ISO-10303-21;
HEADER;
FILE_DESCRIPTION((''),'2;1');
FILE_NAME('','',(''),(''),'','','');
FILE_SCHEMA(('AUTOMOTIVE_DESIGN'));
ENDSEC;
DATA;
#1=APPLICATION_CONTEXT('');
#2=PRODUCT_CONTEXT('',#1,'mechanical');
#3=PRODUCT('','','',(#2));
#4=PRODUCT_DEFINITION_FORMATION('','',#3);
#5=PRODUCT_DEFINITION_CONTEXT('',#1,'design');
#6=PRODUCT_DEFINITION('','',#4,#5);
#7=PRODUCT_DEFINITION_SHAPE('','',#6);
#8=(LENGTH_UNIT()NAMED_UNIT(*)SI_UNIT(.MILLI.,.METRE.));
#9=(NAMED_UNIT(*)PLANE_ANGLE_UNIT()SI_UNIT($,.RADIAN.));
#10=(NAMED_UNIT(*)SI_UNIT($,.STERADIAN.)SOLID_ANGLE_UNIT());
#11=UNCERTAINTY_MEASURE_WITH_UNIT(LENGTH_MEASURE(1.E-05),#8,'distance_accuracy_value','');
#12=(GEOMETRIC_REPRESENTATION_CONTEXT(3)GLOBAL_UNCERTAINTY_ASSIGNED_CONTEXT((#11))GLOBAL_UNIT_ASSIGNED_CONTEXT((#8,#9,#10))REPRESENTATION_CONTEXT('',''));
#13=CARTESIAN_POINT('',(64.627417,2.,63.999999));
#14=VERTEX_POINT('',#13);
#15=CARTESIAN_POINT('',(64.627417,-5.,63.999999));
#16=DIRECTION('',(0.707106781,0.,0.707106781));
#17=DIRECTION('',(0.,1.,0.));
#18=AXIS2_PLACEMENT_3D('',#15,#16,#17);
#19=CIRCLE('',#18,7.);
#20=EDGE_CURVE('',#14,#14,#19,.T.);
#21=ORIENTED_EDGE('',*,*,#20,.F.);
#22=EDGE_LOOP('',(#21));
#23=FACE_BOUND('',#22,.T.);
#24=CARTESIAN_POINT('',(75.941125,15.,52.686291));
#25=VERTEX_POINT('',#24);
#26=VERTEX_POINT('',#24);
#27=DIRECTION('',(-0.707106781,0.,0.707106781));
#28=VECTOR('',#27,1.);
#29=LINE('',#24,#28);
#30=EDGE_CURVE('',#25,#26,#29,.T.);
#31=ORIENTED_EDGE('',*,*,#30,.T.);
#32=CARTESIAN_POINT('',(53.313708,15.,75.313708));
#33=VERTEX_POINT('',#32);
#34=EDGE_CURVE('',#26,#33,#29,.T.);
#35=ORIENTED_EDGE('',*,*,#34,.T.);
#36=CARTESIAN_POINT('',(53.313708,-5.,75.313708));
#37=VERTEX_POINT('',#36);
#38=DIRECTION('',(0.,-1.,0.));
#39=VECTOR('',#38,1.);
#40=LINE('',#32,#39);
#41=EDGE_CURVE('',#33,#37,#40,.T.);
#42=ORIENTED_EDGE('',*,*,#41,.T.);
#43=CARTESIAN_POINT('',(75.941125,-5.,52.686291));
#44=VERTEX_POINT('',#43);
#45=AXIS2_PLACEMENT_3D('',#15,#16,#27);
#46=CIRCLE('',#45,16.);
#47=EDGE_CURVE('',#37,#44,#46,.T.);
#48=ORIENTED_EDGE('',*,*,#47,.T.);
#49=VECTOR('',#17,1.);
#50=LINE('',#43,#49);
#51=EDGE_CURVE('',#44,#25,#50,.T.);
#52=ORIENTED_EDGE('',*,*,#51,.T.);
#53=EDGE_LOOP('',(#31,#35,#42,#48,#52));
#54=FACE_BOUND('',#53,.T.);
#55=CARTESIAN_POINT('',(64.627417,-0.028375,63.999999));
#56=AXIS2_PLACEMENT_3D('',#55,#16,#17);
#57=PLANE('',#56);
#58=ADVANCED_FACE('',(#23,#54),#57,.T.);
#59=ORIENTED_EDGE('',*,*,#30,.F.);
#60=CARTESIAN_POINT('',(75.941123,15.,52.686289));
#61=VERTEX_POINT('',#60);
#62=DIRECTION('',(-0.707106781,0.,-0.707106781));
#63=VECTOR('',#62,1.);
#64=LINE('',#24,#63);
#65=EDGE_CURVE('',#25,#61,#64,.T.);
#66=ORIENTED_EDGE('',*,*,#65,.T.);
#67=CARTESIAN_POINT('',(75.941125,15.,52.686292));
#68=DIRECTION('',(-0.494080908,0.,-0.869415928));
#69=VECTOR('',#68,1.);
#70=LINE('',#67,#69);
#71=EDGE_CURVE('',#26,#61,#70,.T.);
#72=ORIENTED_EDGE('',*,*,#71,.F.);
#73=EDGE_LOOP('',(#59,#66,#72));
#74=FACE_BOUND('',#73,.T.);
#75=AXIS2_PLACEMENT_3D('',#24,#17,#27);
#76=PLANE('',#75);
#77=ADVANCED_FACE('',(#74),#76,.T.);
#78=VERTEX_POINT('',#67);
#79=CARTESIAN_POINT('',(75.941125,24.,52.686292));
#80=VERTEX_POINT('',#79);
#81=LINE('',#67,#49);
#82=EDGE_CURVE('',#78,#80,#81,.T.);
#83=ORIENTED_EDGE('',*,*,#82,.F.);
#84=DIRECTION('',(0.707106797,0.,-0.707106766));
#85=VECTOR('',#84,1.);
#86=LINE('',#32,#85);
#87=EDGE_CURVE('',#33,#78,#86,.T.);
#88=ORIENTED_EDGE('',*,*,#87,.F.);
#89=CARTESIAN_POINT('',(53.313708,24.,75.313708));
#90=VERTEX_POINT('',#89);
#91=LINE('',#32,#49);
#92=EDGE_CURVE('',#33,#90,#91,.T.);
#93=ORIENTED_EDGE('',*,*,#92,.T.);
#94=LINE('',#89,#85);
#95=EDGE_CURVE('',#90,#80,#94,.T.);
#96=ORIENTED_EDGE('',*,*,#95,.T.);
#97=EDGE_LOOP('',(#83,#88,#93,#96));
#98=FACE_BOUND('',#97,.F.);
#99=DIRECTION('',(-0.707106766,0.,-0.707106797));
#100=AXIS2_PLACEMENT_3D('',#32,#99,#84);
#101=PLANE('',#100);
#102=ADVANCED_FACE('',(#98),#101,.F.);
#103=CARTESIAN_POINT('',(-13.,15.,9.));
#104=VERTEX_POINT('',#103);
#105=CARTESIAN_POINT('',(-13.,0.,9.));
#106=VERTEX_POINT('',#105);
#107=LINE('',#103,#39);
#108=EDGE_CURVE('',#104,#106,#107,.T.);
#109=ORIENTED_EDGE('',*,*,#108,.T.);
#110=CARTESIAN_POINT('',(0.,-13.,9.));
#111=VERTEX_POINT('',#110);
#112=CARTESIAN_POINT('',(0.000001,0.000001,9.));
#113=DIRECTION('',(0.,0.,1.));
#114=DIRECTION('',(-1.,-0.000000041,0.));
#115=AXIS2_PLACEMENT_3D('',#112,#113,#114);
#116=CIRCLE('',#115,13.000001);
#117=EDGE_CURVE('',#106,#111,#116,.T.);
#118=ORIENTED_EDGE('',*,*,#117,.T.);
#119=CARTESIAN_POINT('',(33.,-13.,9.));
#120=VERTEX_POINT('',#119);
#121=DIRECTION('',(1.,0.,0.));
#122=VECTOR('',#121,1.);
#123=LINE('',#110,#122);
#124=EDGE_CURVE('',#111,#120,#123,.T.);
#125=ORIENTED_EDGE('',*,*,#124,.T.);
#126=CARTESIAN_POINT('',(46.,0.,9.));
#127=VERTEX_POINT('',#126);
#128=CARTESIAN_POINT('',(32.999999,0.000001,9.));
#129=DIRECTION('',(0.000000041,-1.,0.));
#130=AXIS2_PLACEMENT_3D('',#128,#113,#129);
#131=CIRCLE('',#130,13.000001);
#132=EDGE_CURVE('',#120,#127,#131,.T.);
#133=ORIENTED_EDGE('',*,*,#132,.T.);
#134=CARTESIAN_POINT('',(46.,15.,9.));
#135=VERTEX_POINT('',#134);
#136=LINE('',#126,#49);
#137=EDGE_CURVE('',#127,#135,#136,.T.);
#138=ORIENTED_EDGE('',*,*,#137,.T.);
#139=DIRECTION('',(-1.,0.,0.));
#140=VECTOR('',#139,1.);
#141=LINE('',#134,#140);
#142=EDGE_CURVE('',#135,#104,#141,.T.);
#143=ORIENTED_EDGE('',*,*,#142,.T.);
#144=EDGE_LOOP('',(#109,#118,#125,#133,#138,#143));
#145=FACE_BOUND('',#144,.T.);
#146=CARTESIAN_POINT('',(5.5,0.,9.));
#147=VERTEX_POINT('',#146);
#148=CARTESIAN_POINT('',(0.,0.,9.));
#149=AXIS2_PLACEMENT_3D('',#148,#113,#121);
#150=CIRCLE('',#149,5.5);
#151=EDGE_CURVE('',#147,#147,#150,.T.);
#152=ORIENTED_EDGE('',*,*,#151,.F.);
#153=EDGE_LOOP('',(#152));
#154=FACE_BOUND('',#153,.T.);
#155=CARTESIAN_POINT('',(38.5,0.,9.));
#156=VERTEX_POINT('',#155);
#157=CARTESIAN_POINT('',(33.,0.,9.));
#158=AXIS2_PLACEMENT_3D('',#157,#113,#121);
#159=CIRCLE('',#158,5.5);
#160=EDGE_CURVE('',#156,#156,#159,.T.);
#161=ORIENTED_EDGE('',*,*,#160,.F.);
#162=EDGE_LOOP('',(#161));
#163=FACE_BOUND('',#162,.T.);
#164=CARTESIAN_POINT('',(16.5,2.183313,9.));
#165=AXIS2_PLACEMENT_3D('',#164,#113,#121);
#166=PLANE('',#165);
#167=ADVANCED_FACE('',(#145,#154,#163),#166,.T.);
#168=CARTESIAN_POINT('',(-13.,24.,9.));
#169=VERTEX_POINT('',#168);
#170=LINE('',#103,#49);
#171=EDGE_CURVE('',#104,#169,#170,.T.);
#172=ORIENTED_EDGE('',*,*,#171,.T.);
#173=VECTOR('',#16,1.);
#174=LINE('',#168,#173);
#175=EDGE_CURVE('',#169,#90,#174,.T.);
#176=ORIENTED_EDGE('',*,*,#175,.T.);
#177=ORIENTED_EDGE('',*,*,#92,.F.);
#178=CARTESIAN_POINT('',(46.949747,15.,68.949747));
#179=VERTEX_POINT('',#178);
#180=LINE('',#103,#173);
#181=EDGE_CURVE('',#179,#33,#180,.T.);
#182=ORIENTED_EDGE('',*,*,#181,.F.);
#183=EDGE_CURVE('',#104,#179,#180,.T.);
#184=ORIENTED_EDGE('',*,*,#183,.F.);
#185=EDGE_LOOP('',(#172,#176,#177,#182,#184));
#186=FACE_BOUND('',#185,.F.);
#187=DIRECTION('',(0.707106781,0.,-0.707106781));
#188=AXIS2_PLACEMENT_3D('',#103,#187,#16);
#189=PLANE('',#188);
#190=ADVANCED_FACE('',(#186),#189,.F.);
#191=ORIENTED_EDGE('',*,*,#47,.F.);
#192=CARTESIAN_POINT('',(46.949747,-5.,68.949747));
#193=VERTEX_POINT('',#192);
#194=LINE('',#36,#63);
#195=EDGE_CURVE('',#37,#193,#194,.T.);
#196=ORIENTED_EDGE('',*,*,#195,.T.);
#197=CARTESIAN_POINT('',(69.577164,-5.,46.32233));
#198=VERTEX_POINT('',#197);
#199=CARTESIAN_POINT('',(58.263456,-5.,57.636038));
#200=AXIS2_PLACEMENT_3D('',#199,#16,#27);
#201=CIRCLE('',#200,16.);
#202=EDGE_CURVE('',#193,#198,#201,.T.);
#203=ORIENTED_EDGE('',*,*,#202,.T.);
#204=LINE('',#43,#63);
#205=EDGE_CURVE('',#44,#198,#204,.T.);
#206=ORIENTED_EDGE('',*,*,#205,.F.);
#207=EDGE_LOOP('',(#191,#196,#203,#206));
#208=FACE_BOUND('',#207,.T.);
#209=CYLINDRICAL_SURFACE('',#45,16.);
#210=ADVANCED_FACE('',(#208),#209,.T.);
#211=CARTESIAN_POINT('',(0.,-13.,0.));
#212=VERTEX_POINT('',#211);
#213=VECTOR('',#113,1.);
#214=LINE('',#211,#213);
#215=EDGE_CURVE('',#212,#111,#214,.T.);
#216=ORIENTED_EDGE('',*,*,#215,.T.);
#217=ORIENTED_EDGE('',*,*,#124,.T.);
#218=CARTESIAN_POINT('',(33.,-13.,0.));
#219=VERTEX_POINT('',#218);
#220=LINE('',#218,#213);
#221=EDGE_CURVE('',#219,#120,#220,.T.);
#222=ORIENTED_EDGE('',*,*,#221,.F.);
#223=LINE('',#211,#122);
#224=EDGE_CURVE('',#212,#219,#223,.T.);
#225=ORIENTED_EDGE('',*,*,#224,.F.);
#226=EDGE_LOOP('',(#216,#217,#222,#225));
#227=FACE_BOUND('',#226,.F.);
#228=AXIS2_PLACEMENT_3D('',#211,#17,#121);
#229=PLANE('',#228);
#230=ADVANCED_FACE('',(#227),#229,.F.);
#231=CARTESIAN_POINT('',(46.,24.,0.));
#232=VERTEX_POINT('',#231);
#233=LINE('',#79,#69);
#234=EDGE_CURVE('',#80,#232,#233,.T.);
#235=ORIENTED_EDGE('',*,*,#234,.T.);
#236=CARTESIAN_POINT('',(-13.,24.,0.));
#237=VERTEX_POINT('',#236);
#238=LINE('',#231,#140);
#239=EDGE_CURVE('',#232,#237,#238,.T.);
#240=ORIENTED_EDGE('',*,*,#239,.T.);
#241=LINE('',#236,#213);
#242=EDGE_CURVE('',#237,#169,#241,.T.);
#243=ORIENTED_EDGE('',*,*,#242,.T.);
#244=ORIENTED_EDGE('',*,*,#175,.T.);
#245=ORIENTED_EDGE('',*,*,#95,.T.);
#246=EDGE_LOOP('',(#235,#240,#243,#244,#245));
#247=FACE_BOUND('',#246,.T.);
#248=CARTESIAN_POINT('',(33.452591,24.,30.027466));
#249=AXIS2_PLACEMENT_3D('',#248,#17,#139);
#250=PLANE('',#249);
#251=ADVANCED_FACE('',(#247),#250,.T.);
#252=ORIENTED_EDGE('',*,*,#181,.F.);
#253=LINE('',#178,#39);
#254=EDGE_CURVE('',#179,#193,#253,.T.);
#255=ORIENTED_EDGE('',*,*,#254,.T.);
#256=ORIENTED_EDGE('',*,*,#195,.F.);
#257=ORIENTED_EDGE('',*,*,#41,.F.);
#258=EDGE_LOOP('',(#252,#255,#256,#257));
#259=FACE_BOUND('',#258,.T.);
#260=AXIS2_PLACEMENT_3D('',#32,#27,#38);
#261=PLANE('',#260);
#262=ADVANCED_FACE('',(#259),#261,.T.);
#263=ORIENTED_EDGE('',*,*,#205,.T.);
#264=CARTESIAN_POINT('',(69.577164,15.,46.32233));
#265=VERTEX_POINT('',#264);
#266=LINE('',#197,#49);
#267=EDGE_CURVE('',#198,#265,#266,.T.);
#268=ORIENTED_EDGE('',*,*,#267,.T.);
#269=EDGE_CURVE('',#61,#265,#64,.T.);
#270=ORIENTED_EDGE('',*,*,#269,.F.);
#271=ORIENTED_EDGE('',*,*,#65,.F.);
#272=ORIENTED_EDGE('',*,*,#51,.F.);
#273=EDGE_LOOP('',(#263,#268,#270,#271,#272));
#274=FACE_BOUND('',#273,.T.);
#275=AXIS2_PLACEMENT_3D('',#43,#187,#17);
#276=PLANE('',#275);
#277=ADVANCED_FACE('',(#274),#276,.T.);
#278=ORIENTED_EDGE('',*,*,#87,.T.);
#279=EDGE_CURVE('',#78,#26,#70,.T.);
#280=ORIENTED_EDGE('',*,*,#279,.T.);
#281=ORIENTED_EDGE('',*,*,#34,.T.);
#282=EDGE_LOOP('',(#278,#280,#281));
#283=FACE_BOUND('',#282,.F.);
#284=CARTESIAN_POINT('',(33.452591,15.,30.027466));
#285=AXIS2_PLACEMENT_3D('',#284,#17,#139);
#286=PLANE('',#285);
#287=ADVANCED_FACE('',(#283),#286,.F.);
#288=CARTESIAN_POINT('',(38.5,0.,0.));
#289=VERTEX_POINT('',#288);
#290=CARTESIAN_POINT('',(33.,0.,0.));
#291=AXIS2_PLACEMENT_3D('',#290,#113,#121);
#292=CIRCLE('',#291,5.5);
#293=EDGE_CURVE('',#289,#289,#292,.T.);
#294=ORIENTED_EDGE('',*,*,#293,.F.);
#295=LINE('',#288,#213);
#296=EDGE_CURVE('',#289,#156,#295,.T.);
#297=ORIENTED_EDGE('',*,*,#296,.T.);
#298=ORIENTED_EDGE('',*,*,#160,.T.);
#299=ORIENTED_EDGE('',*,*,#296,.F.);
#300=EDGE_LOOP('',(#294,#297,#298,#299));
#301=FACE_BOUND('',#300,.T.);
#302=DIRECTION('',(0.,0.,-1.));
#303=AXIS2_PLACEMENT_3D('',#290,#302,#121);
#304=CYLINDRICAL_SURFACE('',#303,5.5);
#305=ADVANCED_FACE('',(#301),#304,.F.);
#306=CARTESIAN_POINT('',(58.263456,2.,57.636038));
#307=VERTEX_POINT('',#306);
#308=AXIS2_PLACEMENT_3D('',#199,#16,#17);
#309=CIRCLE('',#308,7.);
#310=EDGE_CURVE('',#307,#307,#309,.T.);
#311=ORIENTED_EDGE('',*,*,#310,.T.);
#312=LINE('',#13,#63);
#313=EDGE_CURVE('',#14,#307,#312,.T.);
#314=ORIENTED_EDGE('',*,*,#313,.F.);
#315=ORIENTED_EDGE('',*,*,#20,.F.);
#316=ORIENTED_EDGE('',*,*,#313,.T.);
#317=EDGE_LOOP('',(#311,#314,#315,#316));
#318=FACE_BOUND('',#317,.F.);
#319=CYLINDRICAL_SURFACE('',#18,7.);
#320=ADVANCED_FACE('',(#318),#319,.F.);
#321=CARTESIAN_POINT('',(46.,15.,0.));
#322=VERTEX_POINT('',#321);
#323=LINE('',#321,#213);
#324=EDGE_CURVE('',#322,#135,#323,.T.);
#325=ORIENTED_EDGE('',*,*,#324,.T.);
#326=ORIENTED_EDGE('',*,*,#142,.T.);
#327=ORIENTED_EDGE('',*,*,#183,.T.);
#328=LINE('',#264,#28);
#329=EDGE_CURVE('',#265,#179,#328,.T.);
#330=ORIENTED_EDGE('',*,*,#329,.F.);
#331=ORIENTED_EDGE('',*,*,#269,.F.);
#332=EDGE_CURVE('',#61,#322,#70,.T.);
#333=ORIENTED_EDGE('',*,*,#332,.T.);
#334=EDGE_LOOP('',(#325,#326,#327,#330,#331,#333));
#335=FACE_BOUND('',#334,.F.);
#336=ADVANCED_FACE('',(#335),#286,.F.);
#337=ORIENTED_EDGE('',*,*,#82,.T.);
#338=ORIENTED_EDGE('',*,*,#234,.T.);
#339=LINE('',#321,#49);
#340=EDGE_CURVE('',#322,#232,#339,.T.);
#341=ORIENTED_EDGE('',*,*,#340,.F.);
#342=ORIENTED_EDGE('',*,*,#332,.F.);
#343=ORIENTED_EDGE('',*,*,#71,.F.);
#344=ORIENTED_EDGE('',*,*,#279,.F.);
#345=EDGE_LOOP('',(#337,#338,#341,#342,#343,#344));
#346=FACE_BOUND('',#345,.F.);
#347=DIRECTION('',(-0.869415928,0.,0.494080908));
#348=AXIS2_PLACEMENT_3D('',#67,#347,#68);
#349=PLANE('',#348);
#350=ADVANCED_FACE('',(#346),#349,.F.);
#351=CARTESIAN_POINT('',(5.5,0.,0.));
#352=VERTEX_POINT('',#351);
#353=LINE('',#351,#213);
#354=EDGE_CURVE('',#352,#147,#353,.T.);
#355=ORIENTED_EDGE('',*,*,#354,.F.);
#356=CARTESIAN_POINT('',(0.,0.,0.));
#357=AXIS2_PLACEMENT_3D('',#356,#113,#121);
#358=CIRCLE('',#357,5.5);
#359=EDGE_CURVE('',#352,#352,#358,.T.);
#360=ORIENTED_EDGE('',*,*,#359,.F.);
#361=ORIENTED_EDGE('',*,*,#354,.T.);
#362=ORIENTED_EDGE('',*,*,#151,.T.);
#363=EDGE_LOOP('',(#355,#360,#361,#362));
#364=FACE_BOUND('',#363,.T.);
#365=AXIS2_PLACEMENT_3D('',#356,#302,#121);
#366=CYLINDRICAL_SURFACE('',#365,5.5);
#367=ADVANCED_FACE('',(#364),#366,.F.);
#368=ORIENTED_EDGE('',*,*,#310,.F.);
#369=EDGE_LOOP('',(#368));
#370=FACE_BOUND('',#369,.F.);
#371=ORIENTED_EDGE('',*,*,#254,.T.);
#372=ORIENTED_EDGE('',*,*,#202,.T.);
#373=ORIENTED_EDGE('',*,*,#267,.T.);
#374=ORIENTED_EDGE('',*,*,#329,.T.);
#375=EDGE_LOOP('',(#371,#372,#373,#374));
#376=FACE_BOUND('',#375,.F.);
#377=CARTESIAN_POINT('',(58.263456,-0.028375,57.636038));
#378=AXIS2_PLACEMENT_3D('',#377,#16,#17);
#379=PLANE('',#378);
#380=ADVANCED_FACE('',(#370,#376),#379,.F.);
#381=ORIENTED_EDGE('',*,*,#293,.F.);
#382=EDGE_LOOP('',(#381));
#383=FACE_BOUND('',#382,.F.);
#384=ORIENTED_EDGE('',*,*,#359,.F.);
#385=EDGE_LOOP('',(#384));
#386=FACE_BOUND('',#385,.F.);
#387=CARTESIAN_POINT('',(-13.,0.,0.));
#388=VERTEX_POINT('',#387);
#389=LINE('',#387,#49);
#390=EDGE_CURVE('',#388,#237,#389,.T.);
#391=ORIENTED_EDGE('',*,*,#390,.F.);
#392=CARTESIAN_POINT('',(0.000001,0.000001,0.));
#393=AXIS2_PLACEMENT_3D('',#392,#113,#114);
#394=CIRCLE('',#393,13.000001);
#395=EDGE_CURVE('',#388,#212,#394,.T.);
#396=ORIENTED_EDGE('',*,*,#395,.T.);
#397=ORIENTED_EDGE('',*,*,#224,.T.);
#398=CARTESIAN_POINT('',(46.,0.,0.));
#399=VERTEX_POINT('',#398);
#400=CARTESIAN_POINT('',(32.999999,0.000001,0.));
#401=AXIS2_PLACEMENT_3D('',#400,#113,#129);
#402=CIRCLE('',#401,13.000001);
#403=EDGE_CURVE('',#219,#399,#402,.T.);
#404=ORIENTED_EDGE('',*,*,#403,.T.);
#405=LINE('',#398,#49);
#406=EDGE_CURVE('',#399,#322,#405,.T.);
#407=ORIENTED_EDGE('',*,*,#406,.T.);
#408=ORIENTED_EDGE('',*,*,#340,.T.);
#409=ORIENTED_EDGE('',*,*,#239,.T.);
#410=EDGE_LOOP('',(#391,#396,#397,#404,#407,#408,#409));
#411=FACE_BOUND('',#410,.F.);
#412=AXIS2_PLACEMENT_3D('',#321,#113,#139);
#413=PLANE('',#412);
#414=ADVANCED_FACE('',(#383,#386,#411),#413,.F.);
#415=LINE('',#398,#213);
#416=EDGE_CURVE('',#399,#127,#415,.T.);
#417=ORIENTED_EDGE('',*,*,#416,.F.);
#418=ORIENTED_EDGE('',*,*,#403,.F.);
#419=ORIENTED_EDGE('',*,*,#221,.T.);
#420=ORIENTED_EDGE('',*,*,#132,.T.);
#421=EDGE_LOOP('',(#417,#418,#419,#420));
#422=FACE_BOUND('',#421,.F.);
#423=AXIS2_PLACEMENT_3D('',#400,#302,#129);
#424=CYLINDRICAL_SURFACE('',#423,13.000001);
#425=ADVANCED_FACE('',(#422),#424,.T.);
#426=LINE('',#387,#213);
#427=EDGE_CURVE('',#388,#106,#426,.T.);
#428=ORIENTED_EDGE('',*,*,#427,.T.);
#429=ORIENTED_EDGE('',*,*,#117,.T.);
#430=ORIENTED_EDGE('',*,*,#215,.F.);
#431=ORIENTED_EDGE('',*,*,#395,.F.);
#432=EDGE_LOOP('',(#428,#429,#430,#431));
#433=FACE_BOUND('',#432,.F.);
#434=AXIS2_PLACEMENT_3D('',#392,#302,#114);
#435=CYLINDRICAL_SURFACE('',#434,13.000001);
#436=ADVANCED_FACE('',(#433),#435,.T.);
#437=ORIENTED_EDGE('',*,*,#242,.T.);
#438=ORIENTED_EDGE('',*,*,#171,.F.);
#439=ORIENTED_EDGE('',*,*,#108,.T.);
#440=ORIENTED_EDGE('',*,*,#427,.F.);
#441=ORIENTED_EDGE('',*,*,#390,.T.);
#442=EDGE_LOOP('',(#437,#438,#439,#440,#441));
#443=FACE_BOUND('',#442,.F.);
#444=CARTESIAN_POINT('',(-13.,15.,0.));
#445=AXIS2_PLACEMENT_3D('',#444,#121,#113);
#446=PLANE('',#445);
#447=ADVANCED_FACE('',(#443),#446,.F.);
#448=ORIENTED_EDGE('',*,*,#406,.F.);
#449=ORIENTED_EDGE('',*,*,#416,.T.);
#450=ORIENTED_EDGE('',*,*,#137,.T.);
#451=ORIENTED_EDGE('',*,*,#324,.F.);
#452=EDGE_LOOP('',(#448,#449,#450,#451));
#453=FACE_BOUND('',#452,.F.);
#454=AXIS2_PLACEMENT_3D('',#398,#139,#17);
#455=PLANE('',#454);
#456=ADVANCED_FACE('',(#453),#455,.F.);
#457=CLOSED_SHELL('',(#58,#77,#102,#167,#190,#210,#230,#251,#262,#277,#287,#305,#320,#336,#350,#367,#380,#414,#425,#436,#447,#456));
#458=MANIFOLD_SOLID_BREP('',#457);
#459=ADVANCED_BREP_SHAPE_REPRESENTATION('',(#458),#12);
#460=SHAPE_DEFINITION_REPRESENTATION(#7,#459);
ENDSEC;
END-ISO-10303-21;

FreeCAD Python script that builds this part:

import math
import FreeCAD as App
import Part
import Sketcher
Q = App.Units.Quantity

doc = App.newDocument("Part")
body = doc.addObject("PartDesign::Body", "Body")

sketch1 = body.newObject("Sketcher::SketchObject", "Sketch")
sketch1.AttachmentSupport = (doc.getObject("XY_Plane"), [""])
sketch1.MapMode = "FlatFace"
sketch1.addGeometry([
    Part.ArcOfCircle(Part.Circle(App.Vector(0.000001, 0.000001, 0), App.Vector(0, 0, 1), 13.000001), math.radians(-179.999998), math.radians(-90.000002)),
    Part.LineSegment(App.Vector(0, -13, 0), App.Vector(33, -13, 0)),
    Part.ArcOfCircle(Part.Circle(App.Vector(32.999999, 0.000001, 0), App.Vector(0, 0, 1), 13.000001), math.radians(-89.999998), math.radians(-0.000002)),
    Part.LineSegment(App.Vector(46, 0, 0), App.Vector(46, 15, 0)),
    Part.LineSegment(App.Vector(46, 15, 0), App.Vector(-13, 15, 0)),
    Part.LineSegment(App.Vector(-13, 15, 0), App.Vector(-13, 0, 0)),
    Part.Circle(App.Vector(0, 0, 0), App.Vector(0, 0, 1), 5.5),
    Part.Circle(App.Vector(33, 0, 0), App.Vector(0, 0, 1), 5.5),
], False)
sketch1.addConstraint([
    Sketcher.Constraint("Tangent", 0, 2, 1, 1),
    Sketcher.Constraint("Tangent", 1, 2, 2, 1),
    Sketcher.Constraint("Tangent", 2, 2, 3, 1),
    Sketcher.Constraint("Coincident", 3, 2, 4, 1),
    Sketcher.Constraint("Coincident", 4, 2, 5, 1),
    Sketcher.Constraint("Tangent", 5, 2, 0, 1),
    Sketcher.Constraint("Horizontal", 1),
    Sketcher.Constraint("Vertical", 3),
    Sketcher.Constraint("Horizontal", 4),
    Sketcher.Constraint("Vertical", 5),
    Sketcher.Constraint("Coincident", 0, 3, -1, 1),
    Sketcher.Constraint("Coincident", 6, 3, -1, 1),
    Sketcher.Constraint("Coincident", 7, 3, 2, 3),
    Sketcher.Constraint("Equal", 0, 2),
    Sketcher.Constraint("Equal", 6, 7),
    Sketcher.Constraint("Diameter", 6, Q("11 mm")),
    Sketcher.Constraint("Radius", 0, Q("13.000001 mm")),
    Sketcher.Constraint("DistanceX", 1, 1, 1, 2, Q("33 mm")),
    Sketcher.Constraint("DistanceY", 3, 1, 3, 2, Q("15 mm")),
])
pad1 = body.newObject("PartDesign::Pad", "Pad")
pad1.Profile = sketch1
pad1.Length = 9

sketch2 = body.newObject("Sketcher::SketchObject", "Sketch001")
sketch2.AttachmentSupport = (doc.getObject("XZ_Plane"), [""])
sketch2.MapMode = "FlatFace"
sketch2.AttachmentOffset = App.Placement(App.Vector(0, 0, -15), App.Rotation())
sketch2.addGeometry([
    Part.LineSegment(App.Vector(46, 0, 0), App.Vector(-13, 0, 0)),
    Part.LineSegment(App.Vector(-13, 0, 0), App.Vector(-13, 9, 0)),
    Part.LineSegment(App.Vector(-13, 9, 0), App.Vector(53.313708, 75.313708, 0)),
    Part.LineSegment(App.Vector(53.313708, 75.313708, 0), App.Vector(75.941125, 52.686292, 0)),
    Part.LineSegment(App.Vector(75.941125, 52.686292, 0), App.Vector(46, 0, 0)),
], False)
sketch2.addConstraint([
    Sketcher.Constraint("Coincident", 0, 2, 1, 1),
    Sketcher.Constraint("Coincident", 1, 2, 2, 1),
    Sketcher.Constraint("Coincident", 2, 2, 3, 1),
    Sketcher.Constraint("Coincident", 3, 2, 4, 1),
    Sketcher.Constraint("Coincident", 4, 2, 0, 1),
    Sketcher.Constraint("Horizontal", 0),
    Sketcher.Constraint("Vertical", 1),
    Sketcher.Constraint("PointOnObject", 0, 2, -1),
    Sketcher.Constraint("Perpendicular", 2, 3),
    Sketcher.Constraint("DistanceX", 0, 2, 0, 1, Q("59 mm")),
    Sketcher.Constraint("DistanceY", 1, 1, 1, 2, Q("9 mm")),
    Sketcher.Constraint("Angle", 2, Q("45 deg")),
    Sketcher.Constraint("Distance", 3, Q("31.999999 mm")),
    Sketcher.Constraint("DistanceX", 0, 2, -1, 1, Q("13 mm")),
    Sketcher.Constraint("Distance", 4, Q("60.59964 mm")),
])
pad2 = body.newObject("PartDesign::Pad", "Pad001")
pad2.Profile = sketch2
pad2.Length = 9
pad2.Reversed = True

sketch3 = body.newObject("Sketcher::SketchObject", "Sketch002")
sketch3.Placement = App.Placement(App.Vector(64.313708, 0, 64.313708), App.Rotation(App.Vector(0, 1, 0), App.Vector(-0.707106781, 0, 0.707106781), App.Vector(0.707106781, 0, 0.707106781), "ZXY"))
sketch3.addGeometry([
    Part.LineSegment(App.Vector(15, -16.443651, 0), App.Vector(15, 15.556349, 0)),
    Part.LineSegment(App.Vector(15, 15.556349, 0), App.Vector(-5, 15.556349, 0)),
    Part.ArcOfCircle(Part.Circle(App.Vector(-5, -0.443651, 0), App.Vector(0, 0, 1), 16), math.radians(90), math.radians(270)),
    Part.LineSegment(App.Vector(-5, -16.443651, 0), App.Vector(15, -16.443651, 0)),
    Part.Circle(App.Vector(-5, -0.443651, 0), App.Vector(0, 0, 1), 7),
], False)
sketch3.addConstraint([
    Sketcher.Constraint("Coincident", 0, 2, 1, 1),
    Sketcher.Constraint("Tangent", 1, 2, 2, 1),
    Sketcher.Constraint("Tangent", 2, 2, 3, 1),
    Sketcher.Constraint("Coincident", 3, 2, 0, 1),
    Sketcher.Constraint("Vertical", 0),
    Sketcher.Constraint("Horizontal", 1),
    Sketcher.Constraint("Horizontal", 3),
    Sketcher.Constraint("Coincident", 4, 3, 2, 3),
    Sketcher.Constraint("Diameter", 4, Q("14 mm")),
    Sketcher.Constraint("Radius", 2, Q("16 mm")),
    Sketcher.Constraint("DistanceX", 1, 2, 1, 1, Q("20 mm")),
    Sketcher.Constraint("DistanceX", 2, 3, -1, 1, Q("5 mm")),
    Sketcher.Constraint("DistanceY", 2, 3, -1, 1, Q("0.443651 mm")),
])
pad3 = body.newObject("PartDesign::Pad", "Pad002")
pad3.Profile = sketch3
pad3.Length = 9
pad3.Reversed = True

doc.recompute()
